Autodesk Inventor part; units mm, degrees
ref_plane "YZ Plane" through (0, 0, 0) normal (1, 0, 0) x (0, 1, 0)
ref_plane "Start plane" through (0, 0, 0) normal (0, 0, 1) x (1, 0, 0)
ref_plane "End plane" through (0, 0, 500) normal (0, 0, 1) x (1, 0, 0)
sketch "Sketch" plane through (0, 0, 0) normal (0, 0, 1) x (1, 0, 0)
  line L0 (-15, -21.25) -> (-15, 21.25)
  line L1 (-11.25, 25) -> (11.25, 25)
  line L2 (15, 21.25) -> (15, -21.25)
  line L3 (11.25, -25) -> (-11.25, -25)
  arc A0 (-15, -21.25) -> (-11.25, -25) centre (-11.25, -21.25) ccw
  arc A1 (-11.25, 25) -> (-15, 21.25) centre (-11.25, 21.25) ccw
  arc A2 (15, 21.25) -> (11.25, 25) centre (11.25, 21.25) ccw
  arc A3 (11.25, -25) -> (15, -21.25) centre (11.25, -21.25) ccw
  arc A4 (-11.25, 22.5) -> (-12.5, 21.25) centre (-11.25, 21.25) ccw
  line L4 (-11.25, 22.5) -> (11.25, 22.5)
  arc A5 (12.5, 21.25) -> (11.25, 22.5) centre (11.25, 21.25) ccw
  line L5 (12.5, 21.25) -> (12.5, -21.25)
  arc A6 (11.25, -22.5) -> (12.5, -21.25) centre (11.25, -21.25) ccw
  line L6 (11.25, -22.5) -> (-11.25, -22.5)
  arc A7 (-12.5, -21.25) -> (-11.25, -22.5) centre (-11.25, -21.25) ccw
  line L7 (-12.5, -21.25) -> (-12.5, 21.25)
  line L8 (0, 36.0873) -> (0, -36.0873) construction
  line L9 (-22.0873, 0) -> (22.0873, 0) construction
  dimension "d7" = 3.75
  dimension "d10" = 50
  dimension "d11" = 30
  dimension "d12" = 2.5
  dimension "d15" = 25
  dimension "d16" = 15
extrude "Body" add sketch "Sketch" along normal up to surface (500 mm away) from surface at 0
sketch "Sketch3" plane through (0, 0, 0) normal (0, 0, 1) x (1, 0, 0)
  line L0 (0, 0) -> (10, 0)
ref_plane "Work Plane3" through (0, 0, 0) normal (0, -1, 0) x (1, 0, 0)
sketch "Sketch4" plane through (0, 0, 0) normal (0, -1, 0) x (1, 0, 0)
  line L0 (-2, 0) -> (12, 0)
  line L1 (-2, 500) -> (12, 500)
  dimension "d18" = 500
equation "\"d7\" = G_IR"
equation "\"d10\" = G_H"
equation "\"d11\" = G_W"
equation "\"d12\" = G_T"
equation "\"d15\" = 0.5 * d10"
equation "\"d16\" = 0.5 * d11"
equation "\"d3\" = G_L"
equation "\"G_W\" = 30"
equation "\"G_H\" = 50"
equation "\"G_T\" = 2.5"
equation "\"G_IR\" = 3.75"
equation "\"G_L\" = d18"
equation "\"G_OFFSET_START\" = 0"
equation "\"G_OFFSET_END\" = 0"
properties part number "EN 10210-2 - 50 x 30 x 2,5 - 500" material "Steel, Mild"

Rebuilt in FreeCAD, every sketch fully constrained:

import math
import FreeCAD as App
import Part
import Sketcher

V = App.Vector
Q = App.Units.Quantity

doc = App.newDocument("Part")
body = doc.addObject("PartDesign::Body", "Body")

sketch1 = doc.addObject("Sketcher::SketchObject", "Sketch")
body.addObject(sketch1)
sketch1.AttachmentSupport = (doc.XY_Plane, [""])
sketch1.MapMode = "FlatFace"
sketch1.addGeometry([
    Part.LineSegment(V(-15, 21.25, 0), V(-15, -21.25, 0)),
    Part.ArcOfCircle(Part.Circle(V(-11.25, -21.25, 0), V(0, 0, 1), 3.75), math.radians(180), math.radians(270)),
    Part.LineSegment(V(-11.25, -25, 0), V(11.25, -25, 0)),
    Part.ArcOfCircle(Part.Circle(V(11.25, -21.25, 0), V(0, 0, 1), 3.75), math.radians(-90), math.radians(0)),
    Part.LineSegment(V(15, -21.25, 0), V(15, 21.25, 0)),
    Part.ArcOfCircle(Part.Circle(V(11.25, 21.25, 0), V(0, 0, 1), 3.75), math.radians(0), math.radians(90)),
    Part.LineSegment(V(11.25, 25, 0), V(-11.25, 25, 0)),
    Part.ArcOfCircle(Part.Circle(V(-11.25, 21.25, 0), V(0, 0, 1), 3.75), math.radians(90), math.radians(180)),
    Part.ArcOfCircle(Part.Circle(V(-11.25, 21.25, 0), V(0, 0, 1), 1.25), math.radians(90), math.radians(180)),
    Part.LineSegment(V(-11.25, 22.5, 0), V(11.25, 22.5, 0)),
    Part.ArcOfCircle(Part.Circle(V(11.25, 21.25, 0), V(0, 0, 1), 1.25), math.radians(0), math.radians(90)),
    Part.LineSegment(V(12.5, 21.25, 0), V(12.5, -21.25, 0)),
    Part.ArcOfCircle(Part.Circle(V(11.25, -21.25, 0), V(0, 0, 1), 1.25), math.radians(-90), math.radians(0)),
    Part.LineSegment(V(11.25, -22.5, 0), V(-11.25, -22.5, 0)),
    Part.ArcOfCircle(Part.Circle(V(-11.25, -21.25, 0), V(0, 0, 1), 1.25), math.radians(180), math.radians(270)),
    Part.LineSegment(V(-12.5, -21.25, 0), V(-12.5, 21.25, 0)),
], False)
sketch1.addConstraint([
    Sketcher.Constraint("Tangent", 0, 2, 1, 1),
    Sketcher.Constraint("Tangent", 1, 2, 2, 1),
    Sketcher.Constraint("Tangent", 2, 2, 3, 1),
    Sketcher.Constraint("Tangent", 3, 2, 4, 1),
    Sketcher.Constraint("Tangent", 4, 2, 5, 1),
    Sketcher.Constraint("Tangent", 5, 2, 6, 1),
    Sketcher.Constraint("Tangent", 6, 2, 7, 1),
    Sketcher.Constraint("Tangent", 7, 2, 0, 1),
    Sketcher.Constraint("Tangent", 8, 1, 9, 1),
    Sketcher.Constraint("Tangent", 9, 2, 10, 2),
    Sketcher.Constraint("Tangent", 10, 1, 11, 1),
    Sketcher.Constraint("Tangent", 11, 2, 12, 2),
    Sketcher.Constraint("Tangent", 12, 1, 13, 1),
    Sketcher.Constraint("Tangent", 13, 2, 14, 2),
    Sketcher.Constraint("Tangent", 14, 1, 15, 1),
    Sketcher.Constraint("Tangent", 15, 2, 8, 2),
    Sketcher.Constraint("Vertical", 0),
    Sketcher.Constraint("Horizontal", 2),
    Sketcher.Constraint("Vertical", 4),
    Sketcher.Constraint("Horizontal", 6),
    Sketcher.Constraint("Horizontal", 9),
    Sketcher.Constraint("Vertical", 11),
    Sketcher.Constraint("Horizontal", 13),
    Sketcher.Constraint("Vertical", 15),
    Sketcher.Constraint("Coincident", 8, 3, 7, 3),
    Sketcher.Constraint("Coincident", 10, 3, 5, 3),
    Sketcher.Constraint("Coincident", 12, 3, 3, 3),
    Sketcher.Constraint("Equal", 1, 3),
    Sketcher.Constraint("Equal", 3, 5),
    Sketcher.Constraint("Equal", 5, 7),
    Sketcher.Constraint("Equal", 12, 14),
    Sketcher.Constraint("Symmetric", 1, 3, 5, 3, -1, 1),
    Sketcher.Constraint("Radius", 1, Q("3.75 mm")),
    Sketcher.Constraint("Radius", 8, Q("1.25 mm")),
    Sketcher.Constraint("DistanceX", 0, 2, -1, 1, Q("15 mm")),
    Sketcher.Constraint("DistanceY", 1, 2, -1, 1, Q("25 mm")),
])
pad1 = doc.addObject("PartDesign::Pad", "Pad")
body.addObject(pad1)
pad1.Profile = sketch1
pad1.Length = 500

doc.recompute()
